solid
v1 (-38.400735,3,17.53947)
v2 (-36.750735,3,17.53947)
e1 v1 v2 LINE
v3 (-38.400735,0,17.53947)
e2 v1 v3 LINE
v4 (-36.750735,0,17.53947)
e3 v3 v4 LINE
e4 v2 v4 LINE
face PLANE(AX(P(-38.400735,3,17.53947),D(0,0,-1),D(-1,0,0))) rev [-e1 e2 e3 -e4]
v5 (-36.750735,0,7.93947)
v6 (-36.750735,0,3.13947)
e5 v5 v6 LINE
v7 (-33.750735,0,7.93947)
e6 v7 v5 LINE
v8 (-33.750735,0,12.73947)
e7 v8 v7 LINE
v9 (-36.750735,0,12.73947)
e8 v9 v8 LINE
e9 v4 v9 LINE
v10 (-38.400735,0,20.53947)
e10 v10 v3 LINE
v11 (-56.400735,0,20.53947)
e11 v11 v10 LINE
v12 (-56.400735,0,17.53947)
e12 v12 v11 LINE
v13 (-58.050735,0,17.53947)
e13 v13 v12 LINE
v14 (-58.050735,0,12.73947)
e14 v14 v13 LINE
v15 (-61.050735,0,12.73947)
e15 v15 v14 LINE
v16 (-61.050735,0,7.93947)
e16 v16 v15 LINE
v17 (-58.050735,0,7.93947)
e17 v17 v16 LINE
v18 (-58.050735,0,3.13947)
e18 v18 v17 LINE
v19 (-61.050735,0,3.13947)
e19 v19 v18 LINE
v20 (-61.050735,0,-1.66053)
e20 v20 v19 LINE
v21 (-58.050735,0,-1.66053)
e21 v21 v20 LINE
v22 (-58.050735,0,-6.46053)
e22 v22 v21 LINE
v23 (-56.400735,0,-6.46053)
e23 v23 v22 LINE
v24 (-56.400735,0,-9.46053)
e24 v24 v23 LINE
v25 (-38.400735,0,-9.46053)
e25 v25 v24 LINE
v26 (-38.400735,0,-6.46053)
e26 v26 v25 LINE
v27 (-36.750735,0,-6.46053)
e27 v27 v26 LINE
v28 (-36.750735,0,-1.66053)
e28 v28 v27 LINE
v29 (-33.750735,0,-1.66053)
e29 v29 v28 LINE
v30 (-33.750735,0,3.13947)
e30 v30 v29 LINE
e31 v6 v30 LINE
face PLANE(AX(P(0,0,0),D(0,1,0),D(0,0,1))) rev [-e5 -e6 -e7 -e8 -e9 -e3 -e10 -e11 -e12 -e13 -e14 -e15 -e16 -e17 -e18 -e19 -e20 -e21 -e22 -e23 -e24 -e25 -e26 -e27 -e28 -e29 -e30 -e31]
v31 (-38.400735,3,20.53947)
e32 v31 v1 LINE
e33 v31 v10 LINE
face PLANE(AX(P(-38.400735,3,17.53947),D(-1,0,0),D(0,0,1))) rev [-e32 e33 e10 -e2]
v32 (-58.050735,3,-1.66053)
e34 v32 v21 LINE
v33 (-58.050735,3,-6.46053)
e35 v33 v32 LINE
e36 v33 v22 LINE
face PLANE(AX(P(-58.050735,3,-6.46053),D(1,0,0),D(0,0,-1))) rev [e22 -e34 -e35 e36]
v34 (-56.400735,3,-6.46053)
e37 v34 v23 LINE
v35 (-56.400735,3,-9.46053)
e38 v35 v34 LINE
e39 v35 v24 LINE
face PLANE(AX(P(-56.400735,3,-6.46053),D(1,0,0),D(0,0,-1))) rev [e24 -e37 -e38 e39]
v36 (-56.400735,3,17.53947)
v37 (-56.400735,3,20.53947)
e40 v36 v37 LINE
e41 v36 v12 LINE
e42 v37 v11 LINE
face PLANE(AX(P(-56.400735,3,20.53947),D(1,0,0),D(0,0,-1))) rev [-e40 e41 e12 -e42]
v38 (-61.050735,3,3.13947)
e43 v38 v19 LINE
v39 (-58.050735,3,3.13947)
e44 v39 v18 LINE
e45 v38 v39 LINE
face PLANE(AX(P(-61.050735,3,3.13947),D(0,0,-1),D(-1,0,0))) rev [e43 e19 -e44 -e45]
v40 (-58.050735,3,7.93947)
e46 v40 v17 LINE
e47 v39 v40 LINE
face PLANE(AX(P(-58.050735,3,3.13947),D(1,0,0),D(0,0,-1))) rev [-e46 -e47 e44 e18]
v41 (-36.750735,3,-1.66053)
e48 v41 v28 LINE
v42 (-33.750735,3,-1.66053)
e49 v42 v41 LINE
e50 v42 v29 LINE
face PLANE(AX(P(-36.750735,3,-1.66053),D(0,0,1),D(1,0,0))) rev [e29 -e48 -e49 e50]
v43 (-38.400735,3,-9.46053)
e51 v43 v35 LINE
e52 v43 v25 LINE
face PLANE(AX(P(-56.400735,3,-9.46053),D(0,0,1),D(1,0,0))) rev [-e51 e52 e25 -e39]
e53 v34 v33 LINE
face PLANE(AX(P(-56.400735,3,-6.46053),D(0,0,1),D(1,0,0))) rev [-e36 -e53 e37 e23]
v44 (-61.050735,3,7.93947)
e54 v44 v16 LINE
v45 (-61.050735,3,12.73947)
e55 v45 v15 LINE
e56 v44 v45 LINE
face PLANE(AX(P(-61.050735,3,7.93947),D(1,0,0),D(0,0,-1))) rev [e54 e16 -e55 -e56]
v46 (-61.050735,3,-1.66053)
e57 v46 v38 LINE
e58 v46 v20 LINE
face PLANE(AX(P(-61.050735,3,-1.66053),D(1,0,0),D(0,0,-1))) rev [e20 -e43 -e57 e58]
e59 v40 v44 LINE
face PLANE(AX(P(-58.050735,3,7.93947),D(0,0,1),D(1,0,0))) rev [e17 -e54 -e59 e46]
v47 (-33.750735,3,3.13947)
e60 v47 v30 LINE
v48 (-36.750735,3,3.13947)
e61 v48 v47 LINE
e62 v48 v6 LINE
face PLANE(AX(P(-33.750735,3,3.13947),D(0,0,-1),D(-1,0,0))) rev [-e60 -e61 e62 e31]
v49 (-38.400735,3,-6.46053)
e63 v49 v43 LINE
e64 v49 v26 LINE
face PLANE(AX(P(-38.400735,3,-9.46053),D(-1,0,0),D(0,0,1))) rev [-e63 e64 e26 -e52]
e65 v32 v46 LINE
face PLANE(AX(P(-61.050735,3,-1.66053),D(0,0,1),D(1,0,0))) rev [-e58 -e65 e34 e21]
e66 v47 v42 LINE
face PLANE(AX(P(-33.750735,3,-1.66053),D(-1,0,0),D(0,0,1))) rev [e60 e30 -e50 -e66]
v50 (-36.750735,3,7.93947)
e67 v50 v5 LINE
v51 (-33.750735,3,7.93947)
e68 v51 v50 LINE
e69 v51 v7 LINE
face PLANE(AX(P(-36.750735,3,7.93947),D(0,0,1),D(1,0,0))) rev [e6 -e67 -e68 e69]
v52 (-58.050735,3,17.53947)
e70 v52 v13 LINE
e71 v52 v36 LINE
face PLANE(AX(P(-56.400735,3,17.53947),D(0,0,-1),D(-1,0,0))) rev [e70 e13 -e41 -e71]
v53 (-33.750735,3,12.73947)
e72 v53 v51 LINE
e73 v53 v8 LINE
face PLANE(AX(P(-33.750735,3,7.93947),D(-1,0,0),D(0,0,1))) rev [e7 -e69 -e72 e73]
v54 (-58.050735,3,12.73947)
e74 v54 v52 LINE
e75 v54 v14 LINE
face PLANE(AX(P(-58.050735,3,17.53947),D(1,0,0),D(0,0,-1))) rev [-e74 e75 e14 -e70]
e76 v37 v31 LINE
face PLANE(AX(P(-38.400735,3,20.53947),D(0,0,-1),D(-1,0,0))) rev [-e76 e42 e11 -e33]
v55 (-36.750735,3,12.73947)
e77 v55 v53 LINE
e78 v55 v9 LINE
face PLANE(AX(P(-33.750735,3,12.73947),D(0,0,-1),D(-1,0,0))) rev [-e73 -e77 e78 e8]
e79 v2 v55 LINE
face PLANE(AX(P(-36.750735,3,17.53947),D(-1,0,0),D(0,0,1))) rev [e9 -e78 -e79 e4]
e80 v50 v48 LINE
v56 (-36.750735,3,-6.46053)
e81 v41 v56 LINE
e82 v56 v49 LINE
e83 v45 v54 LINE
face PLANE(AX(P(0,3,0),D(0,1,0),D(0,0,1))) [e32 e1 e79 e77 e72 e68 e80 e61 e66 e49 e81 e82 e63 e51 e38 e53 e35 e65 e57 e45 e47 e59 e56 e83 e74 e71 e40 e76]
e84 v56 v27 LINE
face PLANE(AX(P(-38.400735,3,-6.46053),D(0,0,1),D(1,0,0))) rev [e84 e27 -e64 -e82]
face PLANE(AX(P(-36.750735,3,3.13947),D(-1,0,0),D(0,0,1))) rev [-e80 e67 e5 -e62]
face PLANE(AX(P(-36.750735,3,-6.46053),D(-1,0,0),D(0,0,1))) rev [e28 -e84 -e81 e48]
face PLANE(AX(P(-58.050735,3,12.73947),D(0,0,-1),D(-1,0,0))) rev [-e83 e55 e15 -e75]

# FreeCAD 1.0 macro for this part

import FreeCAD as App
import Part
import Sketcher
from FreeCAD import Vector
Q = App.Units.Quantity

doc = App.newDocument("Part")
body = doc.addObject("PartDesign::Body", "Body")

sketch1 = body.newObject("Sketcher::SketchObject", "Sketch")
sketch1.AttachmentSupport = (doc.getObject("XZ_Plane"), [""])
sketch1.MapMode = "FlatFace"
sketch1.addGeometry([
    Part.LineSegment(Vector(-56.4, -9.5, 0), Vector(-56.4, -6.5, 0)),
    Part.LineSegment(Vector(-56.4, -6.5, 0), Vector(-58.1, -6.5, 0)),
    Part.LineSegment(Vector(-58.1, -6.5, 0), Vector(-58.1, -1.7, 0)),
    Part.LineSegment(Vector(-58.1, -1.7, 0), Vector(-61.1, -1.7, 0)),
    Part.LineSegment(Vector(-61.1, -1.7, 0), Vector(-61.1, 3.1, 0)),
    Part.LineSegment(Vector(-61.1, 3.1, 0), Vector(-58.1, 3.1, 0)),
    Part.LineSegment(Vector(-58.1, 3.1, 0), Vector(-58.1, 7.9, 0)),
    Part.LineSegment(Vector(-58.1, 7.9, 0), Vector(-61.1, 7.9, 0)),
    Part.LineSegment(Vector(-61.1, 7.9, 0), Vector(-61.1, 12.7, 0)),
    Part.LineSegment(Vector(-61.1, 12.7, 0), Vector(-58.1, 12.7, 0)),
    Part.LineSegment(Vector(-58.1, 12.7, 0), Vector(-58.1, 17.5, 0)),
    Part.LineSegment(Vector(-58.1, 17.5, 0), Vector(-56.4, 17.5, 0)),
    Part.LineSegment(Vector(-56.4, 17.5, 0), Vector(-56.4, 20.5, 0)),
    Part.LineSegment(Vector(-56.4, 20.5, 0), Vector(-38.4, 20.5, 0)),
    Part.LineSegment(Vector(-38.4, 20.5, 0), Vector(-38.4, 17.5, 0)),
    Part.LineSegment(Vector(-38.4, 17.5, 0), Vector(-36.8, 17.5, 0)),
    Part.LineSegment(Vector(-36.8, 17.5, 0), Vector(-36.8, 12.7, 0)),
    Part.LineSegment(Vector(-36.8, 12.7, 0), Vector(-33.8, 12.7, 0)),
    Part.LineSegment(Vector(-33.8, 12.7, 0), Vector(-33.8, 7.9, 0)),
    Part.LineSegment(Vector(-33.8, 7.9, 0), Vector(-36.8, 7.9, 0)),
    Part.LineSegment(Vector(-36.8, 7.9, 0), Vector(-36.8, 3.1, 0)),
    Part.LineSegment(Vector(-36.8, 3.1, 0), Vector(-33.8, 3.1, 0)),
    Part.LineSegment(Vector(-33.8, 3.1, 0), Vector(-33.8, -1.7, 0)),
    Part.LineSegment(Vector(-33.8, -1.7, 0), Vector(-36.8, -1.7, 0)),
    Part.LineSegment(Vector(-36.8, -1.7, 0), Vector(-36.8, -6.5, 0)),
    Part.LineSegment(Vector(-36.8, -6.5, 0), Vector(-38.4, -6.5, 0)),
    Part.LineSegment(Vector(-38.4, -6.5, 0), Vector(-38.4, -9.5, 0)),
    Part.LineSegment(Vector(-38.4, -9.5, 0), Vector(-56.4, -9.5, 0)),
], False)
sketch1.addConstraint([
    Sketcher.Constraint("Coincident", 0, 2, 1, 1),
    Sketcher.Constraint("Coincident", 1, 2, 2, 1),
    Sketcher.Constraint("Coincident", 2, 2, 3, 1),
    Sketcher.Constraint("Coincident", 3, 2, 4, 1),
    Sketcher.Constraint("Coincident", 4, 2, 5, 1),
    Sketcher.Constraint("Coincident", 5, 2, 6, 1),
    Sketcher.Constraint("Coincident", 6, 2, 7, 1),
    Sketcher.Constraint("Coincident", 7, 2, 8, 1),
    Sketcher.Constraint("Coincident", 8, 2, 9, 1),
    Sketcher.Constraint("Coincident", 9, 2, 10, 1),
    Sketcher.Constraint("Coincident", 10, 2, 11, 1),
    Sketcher.Constraint("Coincident", 11, 2, 12, 1),
    Sketcher.Constraint("Coincident", 12, 2, 13, 1),
    Sketcher.Constraint("Coincident", 13, 2, 14, 1),
    Sketcher.Constraint("Coincident", 14, 2, 15, 1),
    Sketcher.Constraint("Coincident", 15, 2, 16, 1),
    Sketcher.Constraint("Coincident", 16, 2, 17, 1),
    Sketcher.Constraint("Coincident", 17, 2, 18, 1),
    Sketcher.Constraint("Coincident", 18, 2, 19, 1),
    Sketcher.Constraint("Coincident", 19, 2, 20, 1),
    Sketcher.Constraint("Coincident", 20, 2, 21, 1),
    Sketcher.Constraint("Coincident", 21, 2, 22, 1),
    Sketcher.Constraint("Coincident", 22, 2, 23, 1),
    Sketcher.Constraint("Coincident", 23, 2, 24, 1),
    Sketcher.Constraint("Coincident", 24, 2, 25, 1),
    Sketcher.Constraint("Coincident", 25, 2, 26, 1),
    Sketcher.Constraint("Coincident", 26, 2, 27, 1),
    Sketcher.Constraint("Coincident", 27, 2, 0, 1),
    Sketcher.Constraint("Vertical", 0),
    Sketcher.Constraint("Horizontal", 1),
    Sketcher.Constraint("Vertical", 2),
    Sketcher.Constraint("Horizontal", 3),
    Sketcher.Constraint("Vertical", 4),
    Sketcher.Constraint("Horizontal", 5),
    Sketcher.Constraint("Vertical", 6),
    Sketcher.Constraint("Horizontal", 7),
    Sketcher.Constraint("Vertical", 8),
    Sketcher.Constraint("Horizontal", 9),
    Sketcher.Constraint("Vertical", 10),
    Sketcher.Constraint("Horizontal", 11),
    Sketcher.Constraint("Vertical", 12),
    Sketcher.Constraint("Horizontal", 13),
    Sketcher.Constraint("Vertical", 14),
    Sketcher.Constraint("Horizontal", 15),
    Sketcher.Constraint("Vertical", 16),
    Sketcher.Constraint("Horizontal", 17),
    Sketcher.Constraint("Vertical", 18),
    Sketcher.Constraint("Horizontal", 19),
    Sketcher.Constraint("Vertical", 20),
    Sketcher.Constraint("Horizontal", 21),
    Sketcher.Constraint("Vertical", 22),
    Sketcher.Constraint("Horizontal", 23),
    Sketcher.Constraint("Vertical", 24),
    Sketcher.Constraint("Horizontal", 25),
    Sketcher.Constraint("Vertical", 26),
    Sketcher.Constraint("Horizontal", 27),
    Sketcher.Constraint("Horizontal", 11, 2, 14, 2),
    Sketcher.Constraint("Horizontal", 9, 2, 16, 2),
    Sketcher.Constraint("Horizontal", 7, 2, 18, 2),
    Sketcher.Constraint("Horizontal", 5, 2, 20, 2),
    Sketcher.Constraint("Horizontal", 3, 2, 22, 2),
    Sketcher.Constraint("Horizontal", 1, 2, 24, 2),
    Sketcher.Constraint("Vertical", 2, 2, 5, 2),
    Sketcher.Constraint("Vertical", 4, 2, 7, 2),
    Sketcher.Constraint("Vertical", 6, 2, 9, 2),
    Sketcher.Constraint("Vertical", 0, 2, 11, 2),
    Sketcher.Constraint("Vertical", 16, 2, 19, 2),
    Sketcher.Constraint("Vertical", 18, 2, 21, 2),
    Sketcher.Constraint("Vertical", 20, 2, 23, 2),
    Sketcher.Constraint("Vertical", 14, 2, 25, 2),
    Sketcher.Constraint("Equal", 11, 15),
    Sketcher.Constraint("Equal", 9, 17),
    Sketcher.Constraint("Equal", 23, 0),
    Sketcher.Constraint("Equal", 2, 4),
    Sketcher.Constraint("Equal", 4, 6),
    Sketcher.Constraint("Equal", 6, 8),
    Sketcher.Constraint("Equal", 8, 10),
    Sketcher.Constraint("Equal", 0, 12),
    Sketcher.Constraint("DistanceX", 3, 2, 3, 1, Q("3 mm")),
    Sketcher.Constraint("DistanceX", 13, 1, 13, 2, Q("18 mm")),
    Sketcher.Constraint("DistanceY", 2, 1, 2, 2, Q("4.8 mm")),
    Sketcher.Constraint("DistanceX", 1, 2, 1, 1, Q("1.65 mm")),
    Sketcher.Constraint("DistanceY", 0, 2, -1, 1, Q("6.46053 mm")),
    Sketcher.Constraint("DistanceX", 0, 2, -1, 1, Q("56.400735 mm")),
])
pad1 = body.newObject("PartDesign::Pad", "Pad")
pad1.Profile = sketch1
pad1.Length = 3
pad1.Reversed = True

doc.recompute()
